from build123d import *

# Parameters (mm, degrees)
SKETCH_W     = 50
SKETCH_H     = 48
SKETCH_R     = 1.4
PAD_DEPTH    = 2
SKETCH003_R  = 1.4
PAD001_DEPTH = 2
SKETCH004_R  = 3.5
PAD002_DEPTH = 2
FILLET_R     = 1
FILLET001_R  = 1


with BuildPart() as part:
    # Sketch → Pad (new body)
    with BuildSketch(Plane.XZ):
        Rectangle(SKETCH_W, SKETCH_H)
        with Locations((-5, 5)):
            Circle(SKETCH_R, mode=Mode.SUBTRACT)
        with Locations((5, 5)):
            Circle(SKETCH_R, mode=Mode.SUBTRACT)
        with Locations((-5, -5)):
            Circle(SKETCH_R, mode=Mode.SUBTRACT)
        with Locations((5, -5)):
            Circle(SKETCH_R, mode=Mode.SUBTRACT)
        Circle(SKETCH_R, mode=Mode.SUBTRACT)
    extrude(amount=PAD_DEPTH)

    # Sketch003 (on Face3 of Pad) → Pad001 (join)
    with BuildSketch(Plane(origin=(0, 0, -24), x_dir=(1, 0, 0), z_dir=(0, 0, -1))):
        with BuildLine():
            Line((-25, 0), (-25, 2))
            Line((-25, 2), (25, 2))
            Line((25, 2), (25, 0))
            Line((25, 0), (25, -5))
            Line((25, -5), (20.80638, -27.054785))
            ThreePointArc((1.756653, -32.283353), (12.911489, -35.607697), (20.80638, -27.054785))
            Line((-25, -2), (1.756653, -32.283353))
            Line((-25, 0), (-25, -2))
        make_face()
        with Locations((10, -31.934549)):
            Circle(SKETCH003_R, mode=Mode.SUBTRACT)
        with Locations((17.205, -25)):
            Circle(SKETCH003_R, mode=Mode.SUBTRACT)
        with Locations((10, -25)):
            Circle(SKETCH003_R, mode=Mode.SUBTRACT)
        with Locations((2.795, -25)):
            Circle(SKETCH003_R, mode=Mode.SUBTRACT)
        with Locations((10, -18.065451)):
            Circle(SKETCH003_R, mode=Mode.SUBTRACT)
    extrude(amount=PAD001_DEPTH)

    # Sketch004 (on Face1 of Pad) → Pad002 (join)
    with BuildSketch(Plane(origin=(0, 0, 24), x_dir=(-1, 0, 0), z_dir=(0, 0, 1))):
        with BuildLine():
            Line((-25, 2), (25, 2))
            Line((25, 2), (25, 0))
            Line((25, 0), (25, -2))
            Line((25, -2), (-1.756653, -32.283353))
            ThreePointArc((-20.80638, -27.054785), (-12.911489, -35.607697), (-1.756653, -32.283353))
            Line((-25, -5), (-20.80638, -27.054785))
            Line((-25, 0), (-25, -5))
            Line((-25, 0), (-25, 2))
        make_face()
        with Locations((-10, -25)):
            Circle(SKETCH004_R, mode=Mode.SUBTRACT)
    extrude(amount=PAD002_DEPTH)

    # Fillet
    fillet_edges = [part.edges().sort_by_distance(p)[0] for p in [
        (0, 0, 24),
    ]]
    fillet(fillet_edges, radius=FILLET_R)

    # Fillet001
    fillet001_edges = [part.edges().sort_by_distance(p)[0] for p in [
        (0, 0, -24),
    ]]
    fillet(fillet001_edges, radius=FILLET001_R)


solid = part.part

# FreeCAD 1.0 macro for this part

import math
import FreeCAD as App
import Part
import Sketcher

V = App.Vector
Q = App.Units.Quantity


def edges_at(feature, points):
    """Names of the edges that pass closest to the given points."""
    edges = feature.Shape.Edges
    near = lambda p: min(range(len(edges)), key=lambda i: edges[i].distToShape(Part.Vertex(*p))[0])
    return sorted({f"Edge{near(p) + 1}" for p in points})


def add_polygon(sketch, points):
    """Adds a closed chain of lines whose ends are joined by coincident constraints."""
    first, n = sketch.GeometryCount, len(points)
    for a, b in zip(points, points[1:] + points[:1]):
        sketch.addGeometry(Part.LineSegment(App.Vector(*a, 0), App.Vector(*b, 0)), False)
    for i in range(n):
        sketch.addConstraint(Sketcher.Constraint("Coincident", first + i, 2, first + (i + 1) % n, 1))

doc = App.newDocument("Part")
params = doc.addObject("Spreadsheet::Sheet", "Params")
for row, (alias, value) in enumerate([
    ("sketch1_diameter", "2.8 mm"),
    ("sketch1_width", "50 mm"),
    ("sketch1_height", "48 mm"),
    ("pad1_length", "2 mm"),
    ("sketch2_radius", "10.999999 mm"),
    ("sketch2_diameter", "2.8 mm"),
    ("sketch2_width", "50 mm"),
    ("sketch2_height", "4 mm"),
    ("sketch2_height2", "7 mm"),
    ("pad2_length", "2 mm"),
    ("sketch3_diameter", "7 mm"),
    ("sketch3_radius", "10.999999 mm"),
    ("sketch3_width", "50 mm"),
    ("sketch3_height", "7 mm"),
    ("sketch3_height2", "4 mm"),
    ("pad3_length", "2 mm"),
    ("fillet_radius", "1 mm"),
    ("fillet2_radius", "1 mm"),
], start=1):
    params.set(f"A{row}", alias)
    params.set(f"B{row}", "=" + value)
    params.setAlias(f"B{row}", alias)

body = doc.addObject("PartDesign::Body", "Body")

# Sketch on XZ plane
sketch1 = doc.addObject("Sketcher::SketchObject", "Sketch")
body.addObject(sketch1)
sketch1.AttachmentSupport = (doc.XZ_Plane, [""])
sketch1.MapMode = "FlatFace"
add_polygon(sketch1, [(-25, 24), (-25, -24), (25, -24), (25, 24)])  # lines 0-3
sketch1.addGeometry(Part.Circle(V(-5, -5, 0), V(0, 0, 1), 1.4), False)  # 4
sketch1.addGeometry(Part.Circle(V(5, -5, 0), V(0, 0, 1), 1.4), False)  # 5
sketch1.addGeometry(Part.Circle(V(-5, 5, 0), V(0, 0, 1), 1.4), False)  # 6
sketch1.addGeometry(Part.Circle(V(0, 0, 0), V(0, 0, 1), 1.4), False)  # 7
sketch1.addGeometry(Part.Circle(V(5, 5, 0), V(0, 0, 1), 1.4), False)  # 8
sketch1.addConstraint(Sketcher.Constraint("Vertical", 0))
sketch1.addConstraint(Sketcher.Constraint("Horizontal", 1))
sketch1.addConstraint(Sketcher.Constraint("Vertical", 2))
sketch1.addConstraint(Sketcher.Constraint("Horizontal", 3))
sketch1.addConstraint(Sketcher.Constraint("Coincident", 7, 3, -1, 1))
sketch1.addConstraint(Sketcher.Constraint("Equal", 4, 5))
sketch1.addConstraint(Sketcher.Constraint("Equal", 5, 6))
sketch1.addConstraint(Sketcher.Constraint("Equal", 6, 7))
sketch1.addConstraint(Sketcher.Constraint("Equal", 7, 8))
sketch1.addConstraint(Sketcher.Constraint("Symmetric", 5, 3, 6, 3, -1, 1))
sketch1.addConstraint(Sketcher.Constraint("Symmetric", 4, 3, 8, 3, -1, 1))
sketch1.addConstraint(Sketcher.Constraint("Symmetric", 0, 2, 2, 2, -1, 1))
sketch1.addConstraint(Sketcher.Constraint("Symmetric", 4, 3, 5, 3, -2))
sketch1.addConstraint(Sketcher.Constraint("Diameter", 4, Q("2.8 mm")))
sketch1.addConstraint(Sketcher.Constraint("DistanceX", 1, 1, 1, 2, Q("50 mm")))
sketch1.addConstraint(Sketcher.Constraint("DistanceY", 0, 2, 0, 1, Q("48 mm")))
sketch1.addConstraint(Sketcher.Constraint("DistanceX", 4, 3, -1, 1, Q("5 mm")))
sketch1.addConstraint(Sketcher.Constraint("DistanceY", 4, 3, -1, 1, Q("5 mm")))
sketch1.setExpression("Constraints[17]", "Params.sketch1_diameter")
sketch1.setExpression("Constraints[18]", "Params.sketch1_width")
sketch1.setExpression("Constraints[19]", "Params.sketch1_height")
pad1 = doc.addObject("PartDesign::Pad", "Pad")
body.addObject(pad1)
pad1.Profile = sketch1
pad1.setExpression("Length", "Params.pad1_length")

# Sketch on XY plane
sketch2 = doc.addObject("Sketcher::SketchObject", "Sketch001")
body.addObject(sketch2)
sketch2.AttachmentSupport = (doc.XY_Plane, [""])
sketch2.MapMode = "FlatFace"
sketch2.AttachmentOffset = App.Placement(V(0, 0, -24), App.Rotation())
sketch2.addGeometry(Part.LineSegment(V(-25, -2, 0), V(-25, 2, 0)), False)
sketch2.addGeometry(Part.LineSegment(V(-25, 2, 0), V(1.8, 32.3, 0)), False)
sketch2.addGeometry(Part.ArcOfCircle(Part.Circle(V(10, 25, 0), V(0, 0, 1), 11), math.radians(11), math.radians(139)), False)
sketch2.addGeometry(Part.LineSegment(V(20.8, 27.1, 0), V(25, 5, 0)), False)
sketch2.addGeometry(Part.LineSegment(V(25, 5, 0), V(25, -2, 0)), False)
sketch2.addGeometry(Part.LineSegment(V(25, -2, 0), V(-25, -2, 0)), False)
sketch2.addGeometry(Part.Circle(V(10, 31.9, 0), V(0, 0, 1), 1.4), False)
sketch2.addGeometry(Part.Circle(V(17.2, 25, 0), V(0, 0, 1), 1.4), False)
sketch2.addGeometry(Part.Circle(V(10, 25, 0), V(0, 0, 1), 1.4), False)
sketch2.addGeometry(Part.Circle(V(10, 18.1, 0), V(0, 0, 1), 1.4), False)
sketch2.addGeometry(Part.Circle(V(2.8, 25, 0), V(0, 0, 1), 1.4), False)
sketch2.addConstraint(Sketcher.Constraint("Coincident", 0, 2, 1, 1))
sketch2.addConstraint(Sketcher.Constraint("Tangent", 1, 2, 2, 2))
sketch2.addConstraint(Sketcher.Constraint("Tangent", 2, 1, 3, 1))
sketch2.addConstraint(Sketcher.Constraint("Coincident", 3, 2, 4, 1))
sketch2.addConstraint(Sketcher.Constraint("Coincident", 4, 2, 5, 1))
sketch2.addConstraint(Sketcher.Constraint("Coincident", 5, 2, 0, 1))
sketch2.addConstraint(Sketcher.Constraint("Vertical", 0))
sketch2.addConstraint(Sketcher.Constraint("Vertical", 4))
sketch2.addConstraint(Sketcher.Constraint("Horizontal", 5))
sketch2.addConstraint(Sketcher.Constraint("Coincident", 8, 3, 2, 3))
sketch2.addConstraint(Sketcher.Constraint("Equal", 6, 7))
sketch2.addConstraint(Sketcher.Constraint("Equal", 7, 8))
sketch2.addConstraint(Sketcher.Constraint("Equal", 8, 9))
sketch2.addConstraint(Sketcher.Constraint("Equal", 9, 10))
sketch2.addConstraint(Sketcher.Constraint("Symmetric", 0, 2, 4, 2, -1, 1))
sketch2.addConstraint(Sketcher.Constraint("Horizontal", 2, 3, 7, 3))
sketch2.addConstraint(Sketcher.Constraint("Horizontal", 8, 3, 10, 3))
sketch2.addConstraint(Sketcher.Constraint("Vertical", 2, 3, 6, 3))
sketch2.addConstraint(Sketcher.Constraint("Vertical", 8, 3, 9, 3))
sketch2.addConstraint(Sketcher.Constraint("Radius", 2, Q("10.999999 mm")))
sketch2.addConstraint(Sketcher.Constraint("Diameter", 6, Q("2.8 mm")))
sketch2.addConstraint(Sketcher.Constraint("DistanceX", 5, 2, 5, 1, Q("50 mm")))
sketch2.addConstraint(Sketcher.Constraint("DistanceY", 0, 1, 0, 2, Q("4 mm")))
sketch2.addConstraint(Sketcher.Constraint("DistanceY", 4, 2, 4, 1, Q("7 mm")))
sketch2.addConstraint(Sketcher.Constraint("DistanceX", -1, 1, 2, 3, Q("10 mm")))
sketch2.addConstraint(Sketcher.Constraint("DistanceY", -1, 1, 2, 3, Q("25.000001 mm")))
sketch2.addConstraint(Sketcher.Constraint("DistanceX", 10, 3, 7, 3, Q("14.41 mm")))
sketch2.addConstraint(Sketcher.Constraint("DistanceX", -1, 1, 7, 3, Q("17.205 mm")))
sketch2.addConstraint(Sketcher.Constraint("DistanceY", 9, 3, 6, 3, Q("13.869098 mm")))
sketch2.addConstraint(Sketcher.Constraint("DistanceY", 9, 3, 1, 2, Q("14.217902 mm")))
sketch2.setExpression("Constraints[19]", "Params.sketch2_radius")
sketch2.setExpression("Constraints[20]", "Params.sketch2_diameter")
sketch2.setExpression("Constraints[21]", "Params.sketch2_width")
sketch2.setExpression("Constraints[22]", "Params.sketch2_height")
sketch2.setExpression("Constraints[23]", "Params.sketch2_height2")
pad2 = doc.addObject("PartDesign::Pad", "Pad001")
body.addObject(pad2)
pad2.Profile = sketch2
pad2.setExpression("Length", "Params.pad2_length")
pad2.Reversed = True

# Sketch on XY plane
sketch3 = doc.addObject("Sketcher::SketchObject", "Sketch002")
body.addObject(sketch3)
sketch3.AttachmentSupport = (doc.XY_Plane, [""])
sketch3.MapMode = "FlatFace"
sketch3.AttachmentOffset = App.Placement(V(0, 0, 24), App.Rotation())
sketch3.addGeometry(Part.LineSegment(V(-25, -2, 0), V(25, -2, 0)), False)
sketch3.addGeometry(Part.LineSegment(V(25, -2, 0), V(25, 5, 0)), False)
sketch3.addGeometry(Part.LineSegment(V(25, 5, 0), V(20.8, 27.1, 0)), False)
sketch3.addGeometry(Part.ArcOfCircle(Part.Circle(V(10, 25, 0), V(0, 0, 1), 11), math.radians(11), math.radians(139)), False)
sketch3.addGeometry(Part.LineSegment(V(1.8, 32.3, 0), V(-25, 2, 0)), False)
sketch3.addGeometry(Part.LineSegment(V(-25, 2, 0), V(-25, -2, 0)), False)
sketch3.addGeometry(Part.Circle(V(10, 25, 0), V(0, 0, 1), 3.5), False)
sketch3.addConstraint(Sketcher.Constraint("Coincident", 0, 2, 1, 1))
sketch3.addConstraint(Sketcher.Constraint("Coincident", 1, 2, 2, 1))
sketch3.addConstraint(Sketcher.Constraint("Tangent", 2, 2, 3, 1))
sketch3.addConstraint(Sketcher.Constraint("Tangent", 3, 2, 4, 1))
sketch3.addConstraint(Sketcher.Constraint("Coincident", 4, 2, 5, 1))
sketch3.addConstraint(Sketcher.Constraint("Coincident", 5, 2, 0, 1))
sketch3.addConstraint(Sketcher.Constraint("Horizontal", 0))
sketch3.addConstraint(Sketcher.Constraint("Vertical", 1))
sketch3.addConstraint(Sketcher.Constraint("Vertical", 5))
sketch3.addConstraint(Sketcher.Constraint("Coincident", 6, 3, 3, 3))
sketch3.addConstraint(Sketcher.Constraint("Symmetric", 0, 2, 4, 2, -1, 1))
sketch3.addConstraint(Sketcher.Constraint("Diameter", 6, Q("7 mm")))
sketch3.addConstraint(Sketcher.Constraint("Radius", 3, Q("10.999999 mm")))
sketch3.addConstraint(Sketcher.Constraint("DistanceX", 0, 1, 0, 2, Q("50 mm")))
sketch3.addConstraint(Sketcher.Constraint("DistanceY", 1, 1, 1, 2, Q("7 mm")))
sketch3.addConstraint(Sketcher.Constraint("DistanceY", 5, 2, 5, 1, Q("4 mm")))
sketch3.addConstraint(Sketcher.Constraint("DistanceX", -1, 1, 3, 3, Q("10 mm")))
sketch3.addConstraint(Sketcher.Constraint("DistanceY", -1, 1, 3, 3, Q("25.000001 mm")))
sketch3.setExpression("Constraints[11]", "Params.sketch3_diameter")
sketch3.setExpression("Constraints[12]", "Params.sketch3_radius")
sketch3.setExpression("Constraints[13]", "Params.sketch3_width")
sketch3.setExpression("Constraints[14]", "Params.sketch3_height")
sketch3.setExpression("Constraints[15]", "Params.sketch3_height2")
pad3 = doc.addObject("PartDesign::Pad", "Pad002")
body.addObject(pad3)
pad3.Profile = sketch3
pad3.setExpression("Length", "Params.pad3_length")
doc.recompute()

fillet = doc.addObject("PartDesign::Fillet", "Fillet")
body.addObject(fillet)
fillet.Base = (pad3, edges_at(pad3, [(0, 0, 24)]))
fillet.setExpression("Radius", "Params.fillet_radius")
doc.recompute()

fillet2 = doc.addObject("PartDesign::Fillet", "Fillet001")
body.addObject(fillet2)
fillet2.Base = (fillet, edges_at(fillet, [(0, 0, -24)]))
fillet2.setExpression("Radius", "Params.fillet2_radius")

doc.recompute()
